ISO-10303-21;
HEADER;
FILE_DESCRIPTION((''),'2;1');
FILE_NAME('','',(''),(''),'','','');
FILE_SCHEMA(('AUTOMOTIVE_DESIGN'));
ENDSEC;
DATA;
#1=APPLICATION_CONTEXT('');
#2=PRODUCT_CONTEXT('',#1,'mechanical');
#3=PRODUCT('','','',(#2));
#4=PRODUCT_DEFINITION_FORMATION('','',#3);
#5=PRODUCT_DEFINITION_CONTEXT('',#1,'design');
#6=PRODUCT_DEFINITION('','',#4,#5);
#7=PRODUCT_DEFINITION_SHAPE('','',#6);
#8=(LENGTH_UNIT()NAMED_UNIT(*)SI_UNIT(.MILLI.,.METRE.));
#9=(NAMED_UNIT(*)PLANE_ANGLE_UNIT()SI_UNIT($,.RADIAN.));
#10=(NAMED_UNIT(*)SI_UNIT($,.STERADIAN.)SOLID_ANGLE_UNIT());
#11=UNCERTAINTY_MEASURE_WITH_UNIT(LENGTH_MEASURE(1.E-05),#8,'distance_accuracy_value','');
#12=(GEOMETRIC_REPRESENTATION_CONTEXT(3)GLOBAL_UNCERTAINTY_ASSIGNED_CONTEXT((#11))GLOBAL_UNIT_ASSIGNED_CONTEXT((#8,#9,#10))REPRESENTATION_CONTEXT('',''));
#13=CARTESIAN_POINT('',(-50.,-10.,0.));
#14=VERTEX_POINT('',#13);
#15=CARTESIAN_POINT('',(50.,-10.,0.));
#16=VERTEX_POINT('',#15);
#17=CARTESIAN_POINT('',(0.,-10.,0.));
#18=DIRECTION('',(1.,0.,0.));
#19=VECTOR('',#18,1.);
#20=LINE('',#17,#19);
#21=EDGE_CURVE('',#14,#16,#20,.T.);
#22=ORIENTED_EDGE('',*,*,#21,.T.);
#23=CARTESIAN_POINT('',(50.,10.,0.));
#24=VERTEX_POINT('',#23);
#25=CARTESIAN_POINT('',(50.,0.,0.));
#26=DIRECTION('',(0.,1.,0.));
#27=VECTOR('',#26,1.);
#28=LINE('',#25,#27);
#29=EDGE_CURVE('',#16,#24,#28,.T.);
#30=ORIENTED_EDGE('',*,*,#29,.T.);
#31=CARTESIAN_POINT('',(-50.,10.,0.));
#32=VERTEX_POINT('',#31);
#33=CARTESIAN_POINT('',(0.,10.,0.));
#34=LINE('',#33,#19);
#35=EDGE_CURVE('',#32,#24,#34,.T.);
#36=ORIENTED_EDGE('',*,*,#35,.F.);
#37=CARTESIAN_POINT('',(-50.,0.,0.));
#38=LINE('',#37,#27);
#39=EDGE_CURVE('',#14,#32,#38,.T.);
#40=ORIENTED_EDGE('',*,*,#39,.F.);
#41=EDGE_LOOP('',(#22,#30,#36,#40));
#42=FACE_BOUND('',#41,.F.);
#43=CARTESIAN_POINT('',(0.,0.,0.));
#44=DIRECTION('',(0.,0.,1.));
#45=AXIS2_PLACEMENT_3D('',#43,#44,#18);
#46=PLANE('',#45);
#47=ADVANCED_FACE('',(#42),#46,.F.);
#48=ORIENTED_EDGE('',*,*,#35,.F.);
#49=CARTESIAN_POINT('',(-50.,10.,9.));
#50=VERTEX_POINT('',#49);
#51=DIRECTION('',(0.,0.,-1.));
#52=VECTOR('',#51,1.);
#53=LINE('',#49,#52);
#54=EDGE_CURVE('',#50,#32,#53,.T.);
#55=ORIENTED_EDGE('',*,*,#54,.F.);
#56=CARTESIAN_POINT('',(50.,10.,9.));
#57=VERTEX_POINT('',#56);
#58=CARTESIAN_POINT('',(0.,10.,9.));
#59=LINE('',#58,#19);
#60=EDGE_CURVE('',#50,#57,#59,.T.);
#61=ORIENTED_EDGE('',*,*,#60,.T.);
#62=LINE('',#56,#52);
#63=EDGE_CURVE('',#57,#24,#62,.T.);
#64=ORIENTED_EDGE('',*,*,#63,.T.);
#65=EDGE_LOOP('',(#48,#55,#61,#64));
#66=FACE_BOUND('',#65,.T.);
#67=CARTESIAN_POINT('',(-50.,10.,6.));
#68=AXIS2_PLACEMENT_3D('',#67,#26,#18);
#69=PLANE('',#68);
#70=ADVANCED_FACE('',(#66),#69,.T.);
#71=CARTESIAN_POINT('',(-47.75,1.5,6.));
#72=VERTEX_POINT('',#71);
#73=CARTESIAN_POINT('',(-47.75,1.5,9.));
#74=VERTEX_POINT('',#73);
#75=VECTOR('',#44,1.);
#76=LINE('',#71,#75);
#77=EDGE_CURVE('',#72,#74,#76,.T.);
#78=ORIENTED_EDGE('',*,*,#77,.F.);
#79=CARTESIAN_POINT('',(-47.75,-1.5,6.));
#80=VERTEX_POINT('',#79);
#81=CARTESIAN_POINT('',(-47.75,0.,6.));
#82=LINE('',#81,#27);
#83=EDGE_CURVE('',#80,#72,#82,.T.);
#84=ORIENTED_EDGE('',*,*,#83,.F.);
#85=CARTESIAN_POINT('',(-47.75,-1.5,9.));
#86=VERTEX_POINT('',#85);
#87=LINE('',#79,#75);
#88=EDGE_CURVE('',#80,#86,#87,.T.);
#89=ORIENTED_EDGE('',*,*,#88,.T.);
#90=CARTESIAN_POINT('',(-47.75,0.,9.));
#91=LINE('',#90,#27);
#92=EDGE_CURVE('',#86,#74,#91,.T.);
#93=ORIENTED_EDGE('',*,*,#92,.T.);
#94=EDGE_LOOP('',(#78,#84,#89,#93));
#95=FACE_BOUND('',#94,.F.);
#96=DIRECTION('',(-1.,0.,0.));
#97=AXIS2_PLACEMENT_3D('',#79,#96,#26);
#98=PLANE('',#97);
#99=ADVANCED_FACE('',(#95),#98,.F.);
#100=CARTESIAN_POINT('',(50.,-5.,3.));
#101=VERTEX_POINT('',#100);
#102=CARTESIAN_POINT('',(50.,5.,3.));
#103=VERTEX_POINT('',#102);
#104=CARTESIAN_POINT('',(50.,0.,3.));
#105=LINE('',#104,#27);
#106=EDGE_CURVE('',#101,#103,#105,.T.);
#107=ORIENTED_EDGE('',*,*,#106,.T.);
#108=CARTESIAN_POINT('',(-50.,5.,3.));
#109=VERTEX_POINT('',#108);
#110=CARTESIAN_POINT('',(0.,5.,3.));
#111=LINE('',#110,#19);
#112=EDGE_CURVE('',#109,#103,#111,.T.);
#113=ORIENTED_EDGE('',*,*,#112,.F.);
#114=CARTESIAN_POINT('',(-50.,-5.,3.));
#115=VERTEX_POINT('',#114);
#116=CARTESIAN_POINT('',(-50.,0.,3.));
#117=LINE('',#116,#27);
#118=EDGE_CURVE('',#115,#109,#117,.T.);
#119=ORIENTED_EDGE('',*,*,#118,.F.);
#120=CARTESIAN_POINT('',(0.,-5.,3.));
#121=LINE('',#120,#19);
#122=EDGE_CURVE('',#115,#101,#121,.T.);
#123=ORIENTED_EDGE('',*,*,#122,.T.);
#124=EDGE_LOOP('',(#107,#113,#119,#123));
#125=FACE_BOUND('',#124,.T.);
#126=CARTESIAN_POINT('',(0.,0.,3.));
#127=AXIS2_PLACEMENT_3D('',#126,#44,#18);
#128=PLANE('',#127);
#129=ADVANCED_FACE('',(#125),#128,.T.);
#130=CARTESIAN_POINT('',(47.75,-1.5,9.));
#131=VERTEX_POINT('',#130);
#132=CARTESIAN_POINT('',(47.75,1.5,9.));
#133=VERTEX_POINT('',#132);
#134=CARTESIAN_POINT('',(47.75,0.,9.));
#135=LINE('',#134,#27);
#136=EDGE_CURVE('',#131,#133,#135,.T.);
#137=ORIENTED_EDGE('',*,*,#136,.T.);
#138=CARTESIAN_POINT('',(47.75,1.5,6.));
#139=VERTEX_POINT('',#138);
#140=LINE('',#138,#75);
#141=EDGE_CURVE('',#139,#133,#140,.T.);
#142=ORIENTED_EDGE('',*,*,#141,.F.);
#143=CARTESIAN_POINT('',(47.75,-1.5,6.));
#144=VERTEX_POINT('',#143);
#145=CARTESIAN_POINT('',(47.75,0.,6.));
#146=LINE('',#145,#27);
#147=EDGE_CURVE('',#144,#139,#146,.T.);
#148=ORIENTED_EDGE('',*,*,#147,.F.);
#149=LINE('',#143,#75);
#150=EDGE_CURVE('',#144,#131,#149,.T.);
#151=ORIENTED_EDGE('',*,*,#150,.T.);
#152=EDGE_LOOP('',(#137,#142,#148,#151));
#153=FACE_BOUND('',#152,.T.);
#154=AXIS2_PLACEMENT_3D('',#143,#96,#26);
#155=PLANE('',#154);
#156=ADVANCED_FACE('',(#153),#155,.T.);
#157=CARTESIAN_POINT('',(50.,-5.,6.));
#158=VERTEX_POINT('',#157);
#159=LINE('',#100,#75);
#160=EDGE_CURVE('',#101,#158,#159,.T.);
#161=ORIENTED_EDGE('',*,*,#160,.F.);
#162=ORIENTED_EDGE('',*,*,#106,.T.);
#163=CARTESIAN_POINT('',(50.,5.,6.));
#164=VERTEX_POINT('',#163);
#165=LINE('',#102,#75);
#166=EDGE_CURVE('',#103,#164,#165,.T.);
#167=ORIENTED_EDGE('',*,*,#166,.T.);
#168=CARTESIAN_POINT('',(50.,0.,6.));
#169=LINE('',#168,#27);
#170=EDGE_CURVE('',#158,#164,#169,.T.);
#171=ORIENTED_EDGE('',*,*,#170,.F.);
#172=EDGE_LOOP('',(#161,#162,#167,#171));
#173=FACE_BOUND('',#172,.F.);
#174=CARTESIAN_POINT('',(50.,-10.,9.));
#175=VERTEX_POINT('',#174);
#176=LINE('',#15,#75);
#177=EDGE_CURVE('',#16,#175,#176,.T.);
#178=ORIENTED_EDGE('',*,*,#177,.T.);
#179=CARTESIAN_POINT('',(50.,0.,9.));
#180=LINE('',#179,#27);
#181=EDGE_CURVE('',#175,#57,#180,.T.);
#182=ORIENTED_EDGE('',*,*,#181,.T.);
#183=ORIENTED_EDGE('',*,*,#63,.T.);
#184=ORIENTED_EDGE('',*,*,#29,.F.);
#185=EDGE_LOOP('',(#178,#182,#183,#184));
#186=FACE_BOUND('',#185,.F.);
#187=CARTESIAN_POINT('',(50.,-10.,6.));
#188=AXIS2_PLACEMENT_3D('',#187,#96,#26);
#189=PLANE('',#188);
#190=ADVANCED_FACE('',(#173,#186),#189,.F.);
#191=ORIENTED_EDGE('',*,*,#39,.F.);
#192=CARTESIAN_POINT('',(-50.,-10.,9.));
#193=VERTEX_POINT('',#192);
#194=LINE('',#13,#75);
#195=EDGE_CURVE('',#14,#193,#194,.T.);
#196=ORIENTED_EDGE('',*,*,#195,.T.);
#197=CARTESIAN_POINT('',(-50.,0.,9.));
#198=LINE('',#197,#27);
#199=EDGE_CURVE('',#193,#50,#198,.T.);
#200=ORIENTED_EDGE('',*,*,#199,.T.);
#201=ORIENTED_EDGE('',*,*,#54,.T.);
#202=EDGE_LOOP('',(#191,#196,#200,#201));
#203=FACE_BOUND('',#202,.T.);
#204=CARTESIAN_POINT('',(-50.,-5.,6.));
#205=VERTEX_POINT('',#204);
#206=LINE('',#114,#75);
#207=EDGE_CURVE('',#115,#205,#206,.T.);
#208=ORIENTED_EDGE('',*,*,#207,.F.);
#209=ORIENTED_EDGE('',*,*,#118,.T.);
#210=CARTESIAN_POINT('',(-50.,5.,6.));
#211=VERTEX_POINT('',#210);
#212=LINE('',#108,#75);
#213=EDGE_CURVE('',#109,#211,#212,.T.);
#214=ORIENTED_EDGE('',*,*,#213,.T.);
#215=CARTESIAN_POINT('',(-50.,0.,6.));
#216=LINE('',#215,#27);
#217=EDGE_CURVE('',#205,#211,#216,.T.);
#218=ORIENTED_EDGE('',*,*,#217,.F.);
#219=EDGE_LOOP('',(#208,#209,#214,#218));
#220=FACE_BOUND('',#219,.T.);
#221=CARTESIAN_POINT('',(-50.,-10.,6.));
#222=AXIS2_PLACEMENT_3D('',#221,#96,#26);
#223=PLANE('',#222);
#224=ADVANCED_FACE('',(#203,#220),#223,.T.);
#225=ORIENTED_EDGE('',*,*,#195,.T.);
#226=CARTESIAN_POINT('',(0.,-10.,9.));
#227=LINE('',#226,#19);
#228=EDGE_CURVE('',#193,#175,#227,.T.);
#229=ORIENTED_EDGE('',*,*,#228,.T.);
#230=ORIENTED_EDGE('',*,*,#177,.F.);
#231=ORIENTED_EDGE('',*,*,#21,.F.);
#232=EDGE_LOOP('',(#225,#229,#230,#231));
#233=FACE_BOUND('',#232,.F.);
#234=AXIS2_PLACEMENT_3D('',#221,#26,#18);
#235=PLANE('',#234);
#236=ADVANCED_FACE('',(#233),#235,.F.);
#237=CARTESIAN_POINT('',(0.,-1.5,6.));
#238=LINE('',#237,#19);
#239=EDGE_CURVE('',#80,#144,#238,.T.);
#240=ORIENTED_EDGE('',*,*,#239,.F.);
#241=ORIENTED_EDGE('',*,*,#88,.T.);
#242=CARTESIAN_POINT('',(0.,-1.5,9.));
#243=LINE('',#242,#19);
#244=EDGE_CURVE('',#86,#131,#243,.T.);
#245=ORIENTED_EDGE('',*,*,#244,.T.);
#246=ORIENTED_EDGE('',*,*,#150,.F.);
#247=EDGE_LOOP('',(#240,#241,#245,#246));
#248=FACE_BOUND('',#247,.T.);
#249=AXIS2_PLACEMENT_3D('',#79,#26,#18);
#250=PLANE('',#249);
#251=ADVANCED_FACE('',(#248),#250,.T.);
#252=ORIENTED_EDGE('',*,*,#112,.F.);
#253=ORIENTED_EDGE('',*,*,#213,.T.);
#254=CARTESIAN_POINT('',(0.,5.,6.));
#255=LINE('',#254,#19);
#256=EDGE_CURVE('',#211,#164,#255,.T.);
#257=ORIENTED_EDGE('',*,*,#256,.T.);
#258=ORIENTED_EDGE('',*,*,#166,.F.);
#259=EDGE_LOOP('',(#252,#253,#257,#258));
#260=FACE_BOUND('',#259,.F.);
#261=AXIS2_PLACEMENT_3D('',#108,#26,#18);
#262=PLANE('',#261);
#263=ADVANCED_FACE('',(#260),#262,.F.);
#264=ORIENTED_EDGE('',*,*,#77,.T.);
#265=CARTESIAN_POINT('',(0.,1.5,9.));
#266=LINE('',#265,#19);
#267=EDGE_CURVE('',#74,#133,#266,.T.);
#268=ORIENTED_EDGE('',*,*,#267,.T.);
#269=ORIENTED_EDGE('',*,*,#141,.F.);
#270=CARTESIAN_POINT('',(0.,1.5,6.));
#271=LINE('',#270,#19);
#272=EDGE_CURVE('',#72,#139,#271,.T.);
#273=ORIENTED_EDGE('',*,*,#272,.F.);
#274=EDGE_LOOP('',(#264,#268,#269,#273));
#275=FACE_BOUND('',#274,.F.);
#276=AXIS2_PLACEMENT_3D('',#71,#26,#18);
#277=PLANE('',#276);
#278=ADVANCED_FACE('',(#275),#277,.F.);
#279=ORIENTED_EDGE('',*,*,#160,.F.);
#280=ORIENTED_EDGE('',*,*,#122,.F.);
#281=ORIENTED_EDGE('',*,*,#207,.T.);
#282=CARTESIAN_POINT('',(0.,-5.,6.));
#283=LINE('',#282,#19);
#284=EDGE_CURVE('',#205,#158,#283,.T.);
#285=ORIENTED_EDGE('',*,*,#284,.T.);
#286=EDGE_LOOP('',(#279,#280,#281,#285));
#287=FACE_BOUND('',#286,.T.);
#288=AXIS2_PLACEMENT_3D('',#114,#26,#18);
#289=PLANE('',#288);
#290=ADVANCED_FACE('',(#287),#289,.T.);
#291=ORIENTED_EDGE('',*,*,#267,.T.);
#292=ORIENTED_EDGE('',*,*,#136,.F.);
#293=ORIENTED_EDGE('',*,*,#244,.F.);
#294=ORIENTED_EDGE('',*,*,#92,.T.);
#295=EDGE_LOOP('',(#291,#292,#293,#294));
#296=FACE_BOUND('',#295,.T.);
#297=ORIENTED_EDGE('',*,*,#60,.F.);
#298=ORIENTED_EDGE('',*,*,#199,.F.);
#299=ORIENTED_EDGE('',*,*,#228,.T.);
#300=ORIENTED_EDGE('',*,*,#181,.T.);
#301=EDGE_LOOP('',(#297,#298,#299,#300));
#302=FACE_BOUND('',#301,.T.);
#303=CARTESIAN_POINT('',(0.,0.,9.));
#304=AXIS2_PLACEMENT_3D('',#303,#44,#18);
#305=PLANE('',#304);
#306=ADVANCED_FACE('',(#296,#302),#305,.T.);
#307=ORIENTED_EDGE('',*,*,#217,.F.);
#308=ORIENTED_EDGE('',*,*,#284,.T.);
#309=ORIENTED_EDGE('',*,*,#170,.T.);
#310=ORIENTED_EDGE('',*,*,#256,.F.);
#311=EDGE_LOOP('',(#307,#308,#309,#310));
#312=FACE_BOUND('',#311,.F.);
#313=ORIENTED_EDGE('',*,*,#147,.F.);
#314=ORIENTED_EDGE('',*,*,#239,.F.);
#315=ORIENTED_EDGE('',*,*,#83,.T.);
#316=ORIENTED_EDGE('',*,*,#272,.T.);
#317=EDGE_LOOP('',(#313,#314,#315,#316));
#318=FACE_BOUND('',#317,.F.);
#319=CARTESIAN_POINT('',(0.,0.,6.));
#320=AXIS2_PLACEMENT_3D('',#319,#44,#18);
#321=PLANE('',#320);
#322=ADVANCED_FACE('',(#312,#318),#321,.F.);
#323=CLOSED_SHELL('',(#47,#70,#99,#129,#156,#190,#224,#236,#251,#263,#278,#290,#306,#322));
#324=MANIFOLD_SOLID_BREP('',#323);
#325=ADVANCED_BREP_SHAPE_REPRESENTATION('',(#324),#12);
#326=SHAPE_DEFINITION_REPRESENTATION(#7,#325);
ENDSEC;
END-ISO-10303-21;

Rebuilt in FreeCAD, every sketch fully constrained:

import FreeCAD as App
import Part
import Sketcher
from FreeCAD import Vector
Q = App.Units.Quantity


def add_polygon(sketch, points):
    """Adds a closed chain of lines whose ends are joined by coincident constraints."""
    first, n = sketch.GeometryCount, len(points)
    for a, b in zip(points, points[1:] + points[:1]):
        sketch.addGeometry(Part.LineSegment(App.Vector(*a, 0), App.Vector(*b, 0)), False)
    for i in range(n):
        sketch.addConstraint(Sketcher.Constraint("Coincident", first + i, 2, first + (i + 1) % n, 1))

doc = App.newDocument("Part")
body = doc.addObject("PartDesign::Body", "Body")

sketch1 = body.newObject("Sketcher::SketchObject", "Sketch")
sketch1.AttachmentSupport = (doc.getObject("XY_Plane"), [""])
sketch1.MapMode = "FlatFace"
add_polygon(sketch1, [(-50, 10), (-50, -10), (50, -10), (50, 10)])
sketch1.addConstraint([
    Sketcher.Constraint("Vertical", 0),
    Sketcher.Constraint("Horizontal", 1),
    Sketcher.Constraint("Vertical", 2),
    Sketcher.Constraint("Horizontal", 3),
    Sketcher.Constraint("Symmetric", 0, 2, 2, 2, -1, 1),
    Sketcher.Constraint("DistanceX", 1, 1, 1, 2, Q("100 mm")),
    Sketcher.Constraint("DistanceY", 0, 2, 0, 1, Q("20 mm")),
])
pad1 = body.newObject("PartDesign::Pad", "Pad")
pad1.Profile = sketch1
pad1.Length = 3

sketch2 = body.newObject("Sketcher::SketchObject", "Sketch001")
sketch2.AttachmentSupport = (doc.getObject("XY_Plane"), [""])
sketch2.MapMode = "FlatFace"
sketch2.AttachmentOffset = App.Placement(Vector(0, 0, 3), App.Rotation())
add_polygon(sketch2, [(-50, 10), (-50, 5), (50, 5), (50, 10)])
add_polygon(sketch2, [(-50, -5), (-50, -10), (50, -10), (50, -5)])
sketch2.addConstraint([
    Sketcher.Constraint("Vertical", 0),
    Sketcher.Constraint("Horizontal", 1),
    Sketcher.Constraint("Vertical", 2),
    Sketcher.Constraint("Horizontal", 3),
    Sketcher.Constraint("Vertical", 4),
    Sketcher.Constraint("Horizontal", 5),
    Sketcher.Constraint("Vertical", 6),
    Sketcher.Constraint("Horizontal", 7),
    Sketcher.Constraint("Symmetric", 2, 2, 4, 2, -1, 1),
    Sketcher.Constraint("Symmetric", 0, 2, 6, 2, -1, 1),
    Sketcher.Constraint("Vertical", 3, 2, 4, 2),
    Sketcher.Constraint("DistanceX", 1, 1, 1, 2, Q("100 mm")),
    Sketcher.Constraint("DistanceY", 0, 2, 0, 1, Q("5 mm")),
    Sketcher.Constraint("DistanceY", -1, 1, 0, 2, Q("5 mm")),
])
pad2 = body.newObject("PartDesign::Pad", "Pad001")
pad2.Profile = sketch2
pad2.Length = 3

sketch3 = body.newObject("Sketcher::SketchObject", "Sketch002")
sketch3.AttachmentSupport = (doc.getObject("XY_Plane"), [""])
sketch3.MapMode = "FlatFace"
sketch3.AttachmentOffset = App.Placement(Vector(0, 0, 6), App.Rotation())
add_polygon(sketch3, [(-50, 10), (-50, -10), (50, -10), (50, 10)])
add_polygon(sketch3, [(47.75, -1.5), (-47.75, -1.5), (-47.75, 1.5), (47.75, 1.5)])
sketch3.addConstraint([
    Sketcher.Constraint("Vertical", 0),
    Sketcher.Constraint("Horizontal", 1),
    Sketcher.Constraint("Vertical", 2),
    Sketcher.Constraint("Horizontal", 3),
    Sketcher.Constraint("Horizontal", 4),
    Sketcher.Constraint("Vertical", 5),
    Sketcher.Constraint("Horizontal", 6),
    Sketcher.Constraint("Vertical", 7),
    Sketcher.Constraint("Symmetric", 0, 2, 2, 2, -1, 1),
    Sketcher.Constraint("Symmetric", 4, 2, 6, 2, -1, 1),
    Sketcher.Constraint("DistanceX", 1, 1, 1, 2, Q("100 mm")),
    Sketcher.Constraint("DistanceY", 0, 2, 0, 1, Q("20 mm")),
    Sketcher.Constraint("DistanceY", 5, 1, 5, 2, Q("3 mm")),
    Sketcher.Constraint("DistanceX", 4, 2, 4, 1, Q("95.5 mm")),
])
pad3 = body.newObject("PartDesign::Pad", "Pad002")
pad3.Profile = sketch3
pad3.Length = 3

doc.recompute()
